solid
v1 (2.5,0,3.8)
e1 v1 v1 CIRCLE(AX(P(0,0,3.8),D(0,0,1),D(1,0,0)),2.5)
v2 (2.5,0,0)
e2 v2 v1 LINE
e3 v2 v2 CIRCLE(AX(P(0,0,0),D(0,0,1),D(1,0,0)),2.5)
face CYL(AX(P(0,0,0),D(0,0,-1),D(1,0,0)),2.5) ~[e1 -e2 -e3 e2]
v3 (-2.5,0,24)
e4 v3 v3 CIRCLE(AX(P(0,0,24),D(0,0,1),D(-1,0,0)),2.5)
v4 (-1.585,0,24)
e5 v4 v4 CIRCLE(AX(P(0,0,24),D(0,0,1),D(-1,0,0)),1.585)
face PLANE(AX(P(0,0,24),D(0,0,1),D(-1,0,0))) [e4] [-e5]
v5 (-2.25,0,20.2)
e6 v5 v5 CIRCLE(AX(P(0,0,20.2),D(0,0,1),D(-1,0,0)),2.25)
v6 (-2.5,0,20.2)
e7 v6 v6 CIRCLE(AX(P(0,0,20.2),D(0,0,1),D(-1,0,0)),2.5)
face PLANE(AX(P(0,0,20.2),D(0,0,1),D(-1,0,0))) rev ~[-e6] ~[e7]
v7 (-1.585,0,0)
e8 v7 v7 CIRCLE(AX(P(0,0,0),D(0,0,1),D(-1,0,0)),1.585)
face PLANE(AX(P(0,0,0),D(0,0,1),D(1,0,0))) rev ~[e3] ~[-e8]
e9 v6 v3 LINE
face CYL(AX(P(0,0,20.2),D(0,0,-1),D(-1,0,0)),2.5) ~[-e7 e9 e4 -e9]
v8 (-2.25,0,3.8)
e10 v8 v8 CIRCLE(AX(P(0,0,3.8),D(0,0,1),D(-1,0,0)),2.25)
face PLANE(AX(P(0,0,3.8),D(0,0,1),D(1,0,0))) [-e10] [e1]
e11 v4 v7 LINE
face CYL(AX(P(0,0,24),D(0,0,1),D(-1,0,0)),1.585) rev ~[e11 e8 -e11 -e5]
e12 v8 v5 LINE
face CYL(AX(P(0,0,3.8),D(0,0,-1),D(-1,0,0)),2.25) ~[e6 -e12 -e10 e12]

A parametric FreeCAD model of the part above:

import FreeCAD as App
import Part
import Sketcher

V = App.Vector

doc = App.newDocument("Part")
body = doc.addObject("PartDesign::Body", "Body")

# Sketch on XY plane
sketch1 = body.newObject("Sketcher::SketchObject", "Sketch")
sketch1.AttachmentSupport = (doc.getObject("XY_Plane"), [""])
sketch1.MapMode = "FlatFace"
sketch1.addGeometry(Part.Circle(V(0, 0, 0), V(0, 0, 1), 2.5), False)
sketch1.addConstraint(Sketcher.Constraint("Coincident", 0, 3, -1, 1))
sketch1.addConstraint(Sketcher.Constraint("Diameter", 0, 5.0))
pad1 = body.newObject("PartDesign::Pad", "Pad")
pad1.Profile = sketch1
pad1.Length = 3.8

# Sketch on XY plane
sketch2 = body.newObject("Sketcher::SketchObject", "Sketch001")
sketch2.AttachmentSupport = (doc.getObject("XY_Plane"), [""])
sketch2.MapMode = "FlatFace"
sketch2.AttachmentOffset = App.Placement(V(0, 0, 3.8), App.Rotation())
sketch2.addGeometry(Part.Circle(V(0, 0, 0), V(0, 0, 1), 2.25), False)
sketch2.addConstraint(Sketcher.Constraint("Coincident", 0, 3, -1, 1))
sketch2.addConstraint(Sketcher.Constraint("Diameter", 0, 4.5))
pad2 = body.newObject("PartDesign::Pad", "Pad001")
pad2.Profile = sketch2
pad2.Length = 16.4

# Sketch on XY plane
sketch3 = body.newObject("Sketcher::SketchObject", "Sketch002")
sketch3.AttachmentSupport = (doc.getObject("XY_Plane"), [""])
sketch3.MapMode = "FlatFace"
sketch3.AttachmentOffset = App.Placement(V(0, 0, 20.2), App.Rotation())
sketch3.addGeometry(Part.Circle(V(0, 0, 0), V(0, 0, 1), 2.5), False)
sketch3.addConstraint(Sketcher.Constraint("Coincident", 0, 3, -1, 1))
sketch3.addConstraint(Sketcher.Constraint("Diameter", 0, 5.0))
pad3 = body.newObject("PartDesign::Pad", "Pad002")
pad3.Profile = sketch3
pad3.Length = 3.8

# Sketch on XY plane
sketch4 = body.newObject("Sketcher::SketchObject", "Sketch003")
sketch4.AttachmentSupport = (doc.getObject("XY_Plane"), [""])
sketch4.MapMode = "FlatFace"
sketch4.AttachmentOffset = App.Placement(V(0, 0, 24), App.Rotation())
sketch4.addGeometry(Part.Circle(V(0, 0, 0), V(0, 0, 1), 1.585), False)
sketch4.addConstraint(Sketcher.Constraint("Coincident", 0, 3, -1, 1))
sketch4.addConstraint(Sketcher.Constraint("Diameter", 0, 3.17))
pocket1 = body.newObject("PartDesign::Pocket", "Pocket")
pocket1.Profile = sketch4
pocket1.Length = 24

doc.recompute()
